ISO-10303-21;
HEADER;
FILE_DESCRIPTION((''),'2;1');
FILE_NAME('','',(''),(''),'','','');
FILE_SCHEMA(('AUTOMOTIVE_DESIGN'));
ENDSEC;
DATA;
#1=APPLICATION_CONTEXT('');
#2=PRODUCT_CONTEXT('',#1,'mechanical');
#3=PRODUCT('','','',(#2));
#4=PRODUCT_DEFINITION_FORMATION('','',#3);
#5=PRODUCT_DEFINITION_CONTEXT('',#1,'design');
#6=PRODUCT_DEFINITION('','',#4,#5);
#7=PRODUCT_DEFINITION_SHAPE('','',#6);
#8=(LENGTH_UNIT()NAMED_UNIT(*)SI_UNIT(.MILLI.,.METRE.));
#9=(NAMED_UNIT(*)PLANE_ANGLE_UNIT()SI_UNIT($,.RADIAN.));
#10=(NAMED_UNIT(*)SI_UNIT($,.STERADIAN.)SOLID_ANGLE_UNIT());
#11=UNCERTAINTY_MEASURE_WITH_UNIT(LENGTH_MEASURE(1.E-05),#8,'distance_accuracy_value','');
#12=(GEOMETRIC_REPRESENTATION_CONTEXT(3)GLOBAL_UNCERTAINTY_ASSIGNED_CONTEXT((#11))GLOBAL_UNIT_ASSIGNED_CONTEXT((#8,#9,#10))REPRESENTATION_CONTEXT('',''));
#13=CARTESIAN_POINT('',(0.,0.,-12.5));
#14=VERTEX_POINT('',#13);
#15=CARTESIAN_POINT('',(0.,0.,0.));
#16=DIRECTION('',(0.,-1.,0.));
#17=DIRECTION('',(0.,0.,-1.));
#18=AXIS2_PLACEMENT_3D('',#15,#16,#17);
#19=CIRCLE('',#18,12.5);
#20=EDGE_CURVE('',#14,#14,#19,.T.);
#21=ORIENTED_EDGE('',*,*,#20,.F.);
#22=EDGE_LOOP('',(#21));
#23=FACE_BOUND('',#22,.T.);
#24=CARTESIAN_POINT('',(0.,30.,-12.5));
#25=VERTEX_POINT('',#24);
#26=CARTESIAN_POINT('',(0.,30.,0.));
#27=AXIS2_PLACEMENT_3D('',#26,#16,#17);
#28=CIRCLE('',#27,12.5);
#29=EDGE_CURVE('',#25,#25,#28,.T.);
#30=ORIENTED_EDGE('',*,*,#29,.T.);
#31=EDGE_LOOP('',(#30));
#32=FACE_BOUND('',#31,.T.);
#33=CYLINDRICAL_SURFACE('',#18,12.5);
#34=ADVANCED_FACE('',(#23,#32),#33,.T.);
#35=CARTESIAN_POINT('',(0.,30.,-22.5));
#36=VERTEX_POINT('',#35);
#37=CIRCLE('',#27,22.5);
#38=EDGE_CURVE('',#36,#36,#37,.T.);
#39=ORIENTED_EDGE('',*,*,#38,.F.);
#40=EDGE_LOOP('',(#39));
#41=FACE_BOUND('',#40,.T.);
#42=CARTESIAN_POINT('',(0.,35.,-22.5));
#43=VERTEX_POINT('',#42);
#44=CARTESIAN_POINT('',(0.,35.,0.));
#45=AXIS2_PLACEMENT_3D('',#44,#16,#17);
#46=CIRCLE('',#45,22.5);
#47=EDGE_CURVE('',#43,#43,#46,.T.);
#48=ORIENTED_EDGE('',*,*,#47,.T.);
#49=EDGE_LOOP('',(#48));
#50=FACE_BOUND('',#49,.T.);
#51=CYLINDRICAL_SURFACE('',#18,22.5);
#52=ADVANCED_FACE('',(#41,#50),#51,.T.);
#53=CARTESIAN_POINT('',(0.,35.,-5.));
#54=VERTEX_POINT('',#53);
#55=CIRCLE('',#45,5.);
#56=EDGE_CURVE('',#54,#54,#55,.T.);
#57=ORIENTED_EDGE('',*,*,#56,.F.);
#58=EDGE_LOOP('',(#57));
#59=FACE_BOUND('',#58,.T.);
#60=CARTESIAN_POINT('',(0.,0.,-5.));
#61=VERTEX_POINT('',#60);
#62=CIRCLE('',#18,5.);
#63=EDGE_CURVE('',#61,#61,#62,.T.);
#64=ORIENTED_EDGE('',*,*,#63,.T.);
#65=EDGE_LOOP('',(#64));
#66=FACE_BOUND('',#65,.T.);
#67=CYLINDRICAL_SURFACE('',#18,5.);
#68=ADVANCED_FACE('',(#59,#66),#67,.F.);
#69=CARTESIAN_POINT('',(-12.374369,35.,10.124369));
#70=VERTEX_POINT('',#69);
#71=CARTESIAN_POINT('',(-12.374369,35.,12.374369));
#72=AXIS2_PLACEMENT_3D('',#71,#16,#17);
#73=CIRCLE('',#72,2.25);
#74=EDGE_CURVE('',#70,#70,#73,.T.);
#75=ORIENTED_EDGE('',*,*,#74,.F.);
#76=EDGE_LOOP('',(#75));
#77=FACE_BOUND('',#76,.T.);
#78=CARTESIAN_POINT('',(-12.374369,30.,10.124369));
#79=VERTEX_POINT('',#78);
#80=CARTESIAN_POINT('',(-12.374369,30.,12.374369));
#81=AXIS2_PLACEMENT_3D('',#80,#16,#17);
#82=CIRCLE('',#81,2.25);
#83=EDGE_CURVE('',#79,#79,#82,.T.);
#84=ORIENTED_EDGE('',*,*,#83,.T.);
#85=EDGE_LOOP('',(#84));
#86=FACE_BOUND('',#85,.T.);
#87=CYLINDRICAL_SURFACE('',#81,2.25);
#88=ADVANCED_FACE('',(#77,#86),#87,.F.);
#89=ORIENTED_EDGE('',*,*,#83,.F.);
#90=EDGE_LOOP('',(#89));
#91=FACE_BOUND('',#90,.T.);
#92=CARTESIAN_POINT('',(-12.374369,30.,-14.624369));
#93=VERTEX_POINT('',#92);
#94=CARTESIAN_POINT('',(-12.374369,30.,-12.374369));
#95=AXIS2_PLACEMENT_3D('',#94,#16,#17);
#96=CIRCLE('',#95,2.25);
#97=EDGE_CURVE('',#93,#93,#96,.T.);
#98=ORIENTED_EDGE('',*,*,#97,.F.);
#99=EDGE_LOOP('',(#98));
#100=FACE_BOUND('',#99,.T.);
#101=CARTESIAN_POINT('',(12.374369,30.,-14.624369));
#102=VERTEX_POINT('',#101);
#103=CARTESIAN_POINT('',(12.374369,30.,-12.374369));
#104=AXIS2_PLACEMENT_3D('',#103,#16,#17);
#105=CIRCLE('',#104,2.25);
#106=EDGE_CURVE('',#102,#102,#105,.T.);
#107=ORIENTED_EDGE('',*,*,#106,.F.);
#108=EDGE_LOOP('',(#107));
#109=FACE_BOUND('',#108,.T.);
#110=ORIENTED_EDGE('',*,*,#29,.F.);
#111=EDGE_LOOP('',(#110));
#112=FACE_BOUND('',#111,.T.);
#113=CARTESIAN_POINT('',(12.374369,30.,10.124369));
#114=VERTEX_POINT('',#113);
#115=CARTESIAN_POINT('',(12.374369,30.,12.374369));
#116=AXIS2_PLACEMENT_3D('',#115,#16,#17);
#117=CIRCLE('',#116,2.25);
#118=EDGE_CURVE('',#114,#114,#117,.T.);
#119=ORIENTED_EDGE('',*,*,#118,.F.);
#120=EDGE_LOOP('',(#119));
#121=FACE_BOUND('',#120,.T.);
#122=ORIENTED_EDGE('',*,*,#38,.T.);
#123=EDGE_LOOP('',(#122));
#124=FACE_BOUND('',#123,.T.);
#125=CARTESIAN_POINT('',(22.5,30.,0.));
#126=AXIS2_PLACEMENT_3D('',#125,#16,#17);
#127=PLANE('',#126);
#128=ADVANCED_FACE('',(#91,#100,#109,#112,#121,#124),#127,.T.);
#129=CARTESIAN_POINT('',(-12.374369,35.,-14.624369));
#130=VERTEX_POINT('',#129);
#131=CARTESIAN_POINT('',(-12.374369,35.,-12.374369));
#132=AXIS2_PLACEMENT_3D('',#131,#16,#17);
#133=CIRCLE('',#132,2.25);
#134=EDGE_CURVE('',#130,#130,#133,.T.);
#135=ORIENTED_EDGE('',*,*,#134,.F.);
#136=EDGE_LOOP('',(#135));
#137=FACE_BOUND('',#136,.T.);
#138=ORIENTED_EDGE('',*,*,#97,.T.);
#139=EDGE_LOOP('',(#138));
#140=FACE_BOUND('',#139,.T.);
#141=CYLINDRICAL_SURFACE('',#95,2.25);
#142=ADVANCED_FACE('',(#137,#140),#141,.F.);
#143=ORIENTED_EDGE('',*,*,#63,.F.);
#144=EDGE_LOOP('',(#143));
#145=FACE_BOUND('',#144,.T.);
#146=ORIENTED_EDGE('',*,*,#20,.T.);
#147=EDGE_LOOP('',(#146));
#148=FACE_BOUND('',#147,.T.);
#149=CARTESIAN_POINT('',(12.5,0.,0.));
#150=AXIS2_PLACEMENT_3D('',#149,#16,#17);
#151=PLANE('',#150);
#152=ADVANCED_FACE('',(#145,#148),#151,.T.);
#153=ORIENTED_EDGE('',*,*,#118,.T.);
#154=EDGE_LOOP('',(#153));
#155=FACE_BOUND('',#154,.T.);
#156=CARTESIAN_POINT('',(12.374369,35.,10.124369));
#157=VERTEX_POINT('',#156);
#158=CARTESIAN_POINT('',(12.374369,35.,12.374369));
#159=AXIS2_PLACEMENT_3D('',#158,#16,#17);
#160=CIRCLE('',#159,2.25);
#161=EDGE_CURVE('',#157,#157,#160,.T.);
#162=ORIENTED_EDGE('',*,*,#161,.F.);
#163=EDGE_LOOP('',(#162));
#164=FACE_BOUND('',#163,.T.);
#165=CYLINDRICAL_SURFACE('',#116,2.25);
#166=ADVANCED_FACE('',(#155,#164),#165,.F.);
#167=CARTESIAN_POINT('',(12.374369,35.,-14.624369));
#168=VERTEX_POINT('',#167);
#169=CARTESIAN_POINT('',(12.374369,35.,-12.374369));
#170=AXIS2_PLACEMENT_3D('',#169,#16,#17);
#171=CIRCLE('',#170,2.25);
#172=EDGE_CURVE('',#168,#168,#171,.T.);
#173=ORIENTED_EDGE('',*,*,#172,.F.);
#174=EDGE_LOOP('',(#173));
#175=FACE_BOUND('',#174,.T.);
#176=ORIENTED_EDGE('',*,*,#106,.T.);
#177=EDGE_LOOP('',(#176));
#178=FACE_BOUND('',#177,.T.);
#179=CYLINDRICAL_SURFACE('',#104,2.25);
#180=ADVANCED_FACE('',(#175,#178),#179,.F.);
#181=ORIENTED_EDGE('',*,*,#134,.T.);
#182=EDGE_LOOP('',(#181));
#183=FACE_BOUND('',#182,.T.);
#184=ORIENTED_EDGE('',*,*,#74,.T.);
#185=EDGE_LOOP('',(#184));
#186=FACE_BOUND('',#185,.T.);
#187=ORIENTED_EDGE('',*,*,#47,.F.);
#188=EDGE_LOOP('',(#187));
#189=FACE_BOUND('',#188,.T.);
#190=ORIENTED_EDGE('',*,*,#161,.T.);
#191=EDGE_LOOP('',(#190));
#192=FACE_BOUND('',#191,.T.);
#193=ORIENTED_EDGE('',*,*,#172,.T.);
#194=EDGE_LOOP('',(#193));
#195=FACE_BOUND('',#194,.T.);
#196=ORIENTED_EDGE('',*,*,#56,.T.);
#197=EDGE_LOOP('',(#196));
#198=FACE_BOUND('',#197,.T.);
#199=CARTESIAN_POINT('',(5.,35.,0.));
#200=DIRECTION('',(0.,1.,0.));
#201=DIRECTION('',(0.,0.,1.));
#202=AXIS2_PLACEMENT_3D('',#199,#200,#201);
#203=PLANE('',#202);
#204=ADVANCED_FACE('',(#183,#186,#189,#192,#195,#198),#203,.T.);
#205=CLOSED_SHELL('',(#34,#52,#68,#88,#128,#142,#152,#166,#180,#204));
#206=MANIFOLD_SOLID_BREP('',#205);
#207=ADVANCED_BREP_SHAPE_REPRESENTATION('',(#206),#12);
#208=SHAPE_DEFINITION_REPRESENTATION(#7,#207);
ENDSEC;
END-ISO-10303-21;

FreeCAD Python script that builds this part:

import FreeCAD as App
import Part
import Sketcher

V = App.Vector

doc = App.newDocument("Part")
params = doc.addObject("Spreadsheet::Sheet", "Params")
for row, (alias, value) in enumerate([
    ("sketch1_width", "10 mm"),
    ("sketch1_height", "35 mm"),
    ("sketch1_height2", "30 mm"),
    ("sketch1_width2", "17.5 mm"),
    ("revolution_angle", "360 deg"),
    ("sketch2_diameter", "4.5 mm"),
    ("hole_diameter", "4.5 mm"),
], start=1):
    params.set(f"A{row}", alias)
    params.set(f"B{row}", "=" + value)
    params.setAlias(f"B{row}", alias)

body = doc.addObject("PartDesign::Body", "Body")

# Sketch on XY plane
sketch1 = doc.addObject("Sketcher::SketchObject", "Sketch")
body.addObject(sketch1)
sketch1.AttachmentSupport = (doc.XY_Plane, [""])
sketch1.MapMode = "FlatFace"
sketch1.addGeometry(Part.LineSegment(V(22, 35, 0), V(5, 35, 0)), False)
sketch1.addGeometry(Part.LineSegment(V(5, 35, 0), V(5, 0, 0)), False)
sketch1.addGeometry(Part.LineSegment(V(5, 0, 0), V(12, 0, 0)), False)
sketch1.addGeometry(Part.LineSegment(V(12, 0, 0), V(12, 30, 0)), False)
sketch1.addGeometry(Part.LineSegment(V(12, 30, 0), V(22, 30, 0)), False)
sketch1.addGeometry(Part.LineSegment(V(22, 30, 0), V(22, 35, 0)), False)
sketch1.addConstraint(Sketcher.Constraint("Coincident", 0, 2, 1, 1))
sketch1.addConstraint(Sketcher.Constraint("Coincident", 1, 2, 2, 1))
sketch1.addConstraint(Sketcher.Constraint("Coincident", 2, 2, 3, 1))
sketch1.addConstraint(Sketcher.Constraint("Coincident", 3, 2, 4, 1))
sketch1.addConstraint(Sketcher.Constraint("Coincident", 4, 2, 5, 1))
sketch1.addConstraint(Sketcher.Constraint("Coincident", 5, 2, 0, 1))
sketch1.addConstraint(Sketcher.Constraint("Horizontal", 0))
sketch1.addConstraint(Sketcher.Constraint("Vertical", 1))
sketch1.addConstraint(Sketcher.Constraint("Horizontal", 2))
sketch1.addConstraint(Sketcher.Constraint("Vertical", 3))
sketch1.addConstraint(Sketcher.Constraint("Horizontal", 4))
sketch1.addConstraint(Sketcher.Constraint("Vertical", 5))
sketch1.addConstraint(Sketcher.Constraint("PointOnObject", 1, 2, -1))
sketch1.addConstraint(Sketcher.Constraint("DistanceX", 4, 1, 4, 2, 10.0))
sketch1.addConstraint(Sketcher.Constraint("DistanceY", 1, 2, 1, 1, 35.0))
sketch1.addConstraint(Sketcher.Constraint("DistanceY", 3, 1, 3, 2, 30.0))
sketch1.addConstraint(Sketcher.Constraint("DistanceX", 0, 2, 0, 1, 17.5))
sketch1.addConstraint(Sketcher.Constraint("DistanceX", -1, 1, 0, 2, 5.0))
sketch1.setExpression("Constraints[13]", "Params.sketch1_width")
sketch1.setExpression("Constraints[14]", "Params.sketch1_height")
sketch1.setExpression("Constraints[15]", "Params.sketch1_height2")
sketch1.setExpression("Constraints[16]", "Params.sketch1_width2")
revolution = doc.addObject("PartDesign::Revolution", "Revolution")
body.addObject(revolution)
revolution.Profile = sketch1
revolution.ReferenceAxis = (sketch1, ["V_Axis"])
revolution.setExpression("Angle", "Params.revolution_angle")

# Sketch on XZ plane
sketch2 = doc.addObject("Sketcher::SketchObject", "Sketch001")
body.addObject(sketch2)
sketch2.AttachmentSupport = (doc.XZ_Plane, [""])
sketch2.MapMode = "FlatFace"
sketch2.AttachmentOffset = App.Placement(V(0, 0, -30), App.Rotation())
sketch2.addGeometry(Part.Circle(V(-12.4, 12.4, 0), V(0, 0, 1), 2.2), False)
sketch2.addGeometry(Part.Circle(V(-12.4, -12.4, 0), V(0, 0, 1), 2.2), False)
sketch2.addGeometry(Part.Circle(V(12.4, -12.4, 0), V(0, 0, 1), 2.2), False)
sketch2.addGeometry(Part.Circle(V(12.4, 12.4, 0), V(0, 0, 1), 2.2), False)
sketch2.addConstraint(Sketcher.Constraint("Equal", 0, 1))
sketch2.addConstraint(Sketcher.Constraint("Equal", 1, 2))
sketch2.addConstraint(Sketcher.Constraint("Equal", 2, 3))
sketch2.addConstraint(Sketcher.Constraint("Symmetric", 0, 3, 2, 3, -1, 1))
sketch2.addConstraint(Sketcher.Constraint("Symmetric", 1, 3, 3, 3, -1, 1))
sketch2.addConstraint(Sketcher.Constraint("Symmetric", 1, 3, 2, 3, -2))
sketch2.addConstraint(Sketcher.Constraint("Diameter", 0, 4.5))
sketch2.addConstraint(Sketcher.Constraint("DistanceX", 0, 3, -1, 1, 12.374369))
sketch2.addConstraint(Sketcher.Constraint("DistanceY", -1, 1, 0, 3, 12.374369))
sketch2.setExpression("Constraints[6]", "Params.sketch2_diameter")
doc.recompute()
hole = doc.addObject("PartDesign::Hole", "Hole")
body.addObject(hole)
hole.Profile = sketch2
hole.ThreadType = "None"
hole.setExpression("Diameter", "Params.hole_diameter")
hole.DepthType = "ThroughAll"

doc.recompute()
